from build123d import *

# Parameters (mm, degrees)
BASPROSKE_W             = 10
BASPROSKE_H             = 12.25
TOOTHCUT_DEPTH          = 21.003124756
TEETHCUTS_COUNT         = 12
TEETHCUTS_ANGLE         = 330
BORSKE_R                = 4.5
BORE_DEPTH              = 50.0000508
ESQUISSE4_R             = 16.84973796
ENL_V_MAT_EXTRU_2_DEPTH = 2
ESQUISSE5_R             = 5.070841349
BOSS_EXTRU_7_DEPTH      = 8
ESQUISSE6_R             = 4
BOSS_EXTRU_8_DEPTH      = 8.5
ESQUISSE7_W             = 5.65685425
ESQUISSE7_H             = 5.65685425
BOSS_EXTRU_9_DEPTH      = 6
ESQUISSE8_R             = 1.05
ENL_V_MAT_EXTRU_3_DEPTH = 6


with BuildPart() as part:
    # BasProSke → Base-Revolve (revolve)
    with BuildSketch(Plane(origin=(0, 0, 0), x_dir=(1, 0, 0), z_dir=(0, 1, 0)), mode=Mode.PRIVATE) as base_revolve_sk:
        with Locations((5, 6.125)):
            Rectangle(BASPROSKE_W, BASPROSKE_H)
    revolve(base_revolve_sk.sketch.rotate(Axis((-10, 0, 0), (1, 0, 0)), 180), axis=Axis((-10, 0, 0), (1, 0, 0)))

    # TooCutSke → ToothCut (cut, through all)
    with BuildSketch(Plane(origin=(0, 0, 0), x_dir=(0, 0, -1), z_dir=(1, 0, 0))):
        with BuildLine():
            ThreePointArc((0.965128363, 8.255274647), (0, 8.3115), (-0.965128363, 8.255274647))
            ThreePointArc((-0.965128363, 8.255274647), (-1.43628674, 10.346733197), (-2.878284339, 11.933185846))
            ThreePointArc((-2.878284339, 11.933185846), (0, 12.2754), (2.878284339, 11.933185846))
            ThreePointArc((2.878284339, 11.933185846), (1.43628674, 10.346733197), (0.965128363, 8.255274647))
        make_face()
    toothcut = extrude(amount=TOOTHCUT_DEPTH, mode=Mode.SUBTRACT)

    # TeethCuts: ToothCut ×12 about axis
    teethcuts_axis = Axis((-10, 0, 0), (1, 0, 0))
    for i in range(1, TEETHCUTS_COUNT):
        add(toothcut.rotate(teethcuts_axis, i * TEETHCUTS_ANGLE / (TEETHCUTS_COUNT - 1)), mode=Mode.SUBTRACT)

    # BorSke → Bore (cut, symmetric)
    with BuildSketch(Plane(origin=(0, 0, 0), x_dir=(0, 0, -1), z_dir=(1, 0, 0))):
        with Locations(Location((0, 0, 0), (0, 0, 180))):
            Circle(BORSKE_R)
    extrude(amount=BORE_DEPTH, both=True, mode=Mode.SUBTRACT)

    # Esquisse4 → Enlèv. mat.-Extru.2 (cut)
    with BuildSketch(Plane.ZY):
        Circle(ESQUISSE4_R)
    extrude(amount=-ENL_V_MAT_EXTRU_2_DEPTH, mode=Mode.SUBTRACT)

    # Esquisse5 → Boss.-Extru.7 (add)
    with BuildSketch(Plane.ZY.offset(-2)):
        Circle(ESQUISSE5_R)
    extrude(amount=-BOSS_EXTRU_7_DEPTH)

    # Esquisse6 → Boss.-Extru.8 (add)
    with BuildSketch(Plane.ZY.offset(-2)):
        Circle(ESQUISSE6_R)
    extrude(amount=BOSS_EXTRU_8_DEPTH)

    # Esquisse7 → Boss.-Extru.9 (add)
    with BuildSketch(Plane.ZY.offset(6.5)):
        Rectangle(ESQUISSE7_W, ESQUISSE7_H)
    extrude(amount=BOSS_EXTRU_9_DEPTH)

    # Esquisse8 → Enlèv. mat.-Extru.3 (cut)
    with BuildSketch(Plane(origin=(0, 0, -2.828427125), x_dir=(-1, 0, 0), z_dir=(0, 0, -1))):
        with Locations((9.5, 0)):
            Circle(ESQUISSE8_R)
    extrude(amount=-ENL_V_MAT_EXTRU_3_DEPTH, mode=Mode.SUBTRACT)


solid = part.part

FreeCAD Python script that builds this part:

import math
import FreeCAD as App
import Part
import Sketcher

V = App.Vector


def add_polygon(sketch, points):
    """Adds a closed chain of lines whose ends are joined by coincident constraints."""
    first, n = sketch.GeometryCount, len(points)
    for a, b in zip(points, points[1:] + points[:1]):
        sketch.addGeometry(Part.LineSegment(App.Vector(*a, 0), App.Vector(*b, 0)), False)
    for i in range(n):
        sketch.addConstraint(Sketcher.Constraint("Coincident", first + i, 2, first + (i + 1) % n, 1))

doc = App.newDocument("Part")
body = doc.addObject("PartDesign::Body", "Body")

# Sketch on XZ plane
sketch1 = doc.addObject("Sketcher::SketchObject", "Sketch")
body.addObject(sketch1)
sketch1.AttachmentSupport = (doc.XZ_Plane, [""])
sketch1.MapMode = "FlatFace"
add_polygon(sketch1, [(0, -12), (0, 0), (10, 0), (10, -12)])  # lines 0-3
sketch1.addConstraint([
    Sketcher.Constraint("Vertical", 0),
    Sketcher.Constraint("Horizontal", 1),
    Sketcher.Constraint("Vertical", 2),
    Sketcher.Constraint("Horizontal", 3),
    Sketcher.Constraint("Coincident", 0, 2, -1, 1),
    Sketcher.Constraint("DistanceX", 1, 1, 1, 2, 10.0),
    Sketcher.Constraint("DistanceY", 0, 1, 0, 2, 12.25),
])
revolution = doc.addObject("PartDesign::Revolution", "Revolution")
body.addObject(revolution)
revolution.Profile = sketch1
revolution.ReferenceAxis = (sketch1, ["H_Axis"])
revolution.Angle = 360

# Sketch on YZ plane
sketch2 = doc.addObject("Sketcher::SketchObject", "Sketch001")
body.addObject(sketch2)
sketch2.AttachmentSupport = (doc.YZ_Plane, [""])
sketch2.MapMode = "FlatFace"
sketch2.addGeometry([
    Part.ArcOfCircle(Part.Circle(V(0, 0, 0), V(0, 0, 1), 8.3), math.radians(-6.67), math.radians(6.67)),
    Part.ArcOfCircle(Part.Circle(V(8.4, -5.2, 0), V(0, 0, 1), 4.2), math.radians(33), math.radians(92)),
    Part.ArcOfCircle(Part.Circle(V(0, 0, 0), V(0, 0, 1), 12.3), math.radians(-14), math.radians(14)),
    Part.ArcOfCircle(Part.Circle(V(8.4, 5.2, 0), V(0, 0, 1), 4.2), math.radians(-92), math.radians(-33)),
], False)
sketch2.addConstraint([
    Sketcher.Constraint("Coincident", 0, 1, 1, 2),
    Sketcher.Constraint("Coincident", 1, 1, 2, 1),
    Sketcher.Constraint("Coincident", 2, 2, 3, 2),
    Sketcher.Constraint("Coincident", 3, 1, 0, 2),
    Sketcher.Constraint("Coincident", 0, 3, -1, 1),
    Sketcher.Constraint("Coincident", 2, 3, -1, 1),
    Sketcher.Constraint("Equal", 1, 3),
    Sketcher.Constraint("Symmetric", 1, 3, 3, 3, -1),
    Sketcher.Constraint("Radius", 1, 4.2),
    Sketcher.Constraint("Radius", 0, 8.3115),
    Sketcher.Constraint("Radius", 2, 12.2754),
    Sketcher.Constraint("DistanceX", -1, 1, 1, 3, 8.40854),
    Sketcher.Constraint("DistanceY", 1, 3, -1, 1, 5.162331),
])
pocket1 = doc.addObject("PartDesign::Pocket", "Pocket")
body.addObject(pocket1)
pocket1.Profile = sketch2
pocket1.Type = "ThroughAll"
pocket1.Reversed = True
doc.recompute()

polarpattern = doc.addObject("PartDesign::PolarPattern", "PolarPattern")
body.addObject(polarpattern)
polarpattern.Originals = [pocket1]
polarpattern.Axis = (doc.X_Axis, [""])
polarpattern.Angle = 360
polarpattern.Occurrences = 12
body.Tip = polarpattern

# Sketch on YZ plane
sketch3 = doc.addObject("Sketcher::SketchObject", "Sketch002")
body.addObject(sketch3)
sketch3.AttachmentSupport = (doc.YZ_Plane, [""])
sketch3.MapMode = "FlatFace"
sketch3.addGeometry(Part.Circle(V(0, 0, 0), V(0, 0, 1), 4.5), False)
sketch3.addConstraint([
    Sketcher.Constraint("Coincident", 0, 3, -1, 1),
    Sketcher.Constraint("Diameter", 0, 9.0),
])
pocket2 = doc.addObject("PartDesign::Pocket", "Pocket001")
body.addObject(pocket2)
pocket2.Profile = sketch3
pocket2.Length = 100.000102
pocket2.Midplane = True

# Sketch on YZ plane
sketch4 = doc.addObject("Sketcher::SketchObject", "Sketch003")
body.addObject(sketch4)
sketch4.AttachmentSupport = (doc.YZ_Plane, [""])
sketch4.MapMode = "FlatFace"
sketch4.addGeometry(Part.Circle(V(0, 0, 0), V(0, 0, 1), 17), False)
sketch4.addConstraint([
    Sketcher.Constraint("Coincident", 0, 3, -1, 1),
    Sketcher.Constraint("Diameter", 0, 33.699476),
])
pocket3 = doc.addObject("PartDesign::Pocket", "Pocket002")
body.addObject(pocket3)
pocket3.Profile = sketch4
pocket3.Length = 2
pocket3.Reversed = True

# Sketch on YZ plane
sketch5 = doc.addObject("Sketcher::SketchObject", "Sketch004")
body.addObject(sketch5)
sketch5.AttachmentSupport = (doc.YZ_Plane, [""])
sketch5.MapMode = "FlatFace"
sketch5.AttachmentOffset = App.Placement(V(0, 0, 2), App.Rotation())
sketch5.addGeometry(Part.Circle(V(0, 0, 0), V(0, 0, 1), 5), False)
sketch5.addConstraint([
    Sketcher.Constraint("Coincident", 0, 3, -1, 1),
    Sketcher.Constraint("Diameter", 0, 10.141683),
])
pad1 = doc.addObject("PartDesign::Pad", "Pad")
body.addObject(pad1)
pad1.Profile = sketch5
pad1.Length = 8

# Sketch on YZ plane
sketch6 = doc.addObject("Sketcher::SketchObject", "Sketch005")
body.addObject(sketch6)
sketch6.AttachmentSupport = (doc.YZ_Plane, [""])
sketch6.MapMode = "FlatFace"
sketch6.AttachmentOffset = App.Placement(V(0, 0, 2), App.Rotation())
sketch6.addGeometry(Part.Circle(V(0, 0, 0), V(0, 0, 1), 4), False)
sketch6.addConstraint([
    Sketcher.Constraint("Coincident", 0, 3, -1, 1),
    Sketcher.Constraint("Diameter", 0, 8.0),
])
pad2 = doc.addObject("PartDesign::Pad", "Pad001")
body.addObject(pad2)
pad2.Profile = sketch6
pad2.Length = 8.5
pad2.Reversed = True

# Sketch on YZ plane
sketch7 = doc.addObject("Sketcher::SketchObject", "Sketch006")
body.addObject(sketch7)
sketch7.AttachmentSupport = (doc.YZ_Plane, [""])
sketch7.MapMode = "FlatFace"
sketch7.AttachmentOffset = App.Placement(V(0, 0, -6.5), App.Rotation())
add_polygon(sketch7, [(3, -3), (-3, -3), (-3, 3), (3, 3)])  # lines 0-3
sketch7.addConstraint([
    Sketcher.Constraint("Horizontal", 0),
    Sketcher.Constraint("Vertical", 1),
    Sketcher.Constraint("Horizontal", 2),
    Sketcher.Constraint("Vertical", 3),
    Sketcher.Constraint("Symmetric", 0, 2, 2, 2, -1, 1),
    Sketcher.Constraint("Equal", 2, 1),
    Sketcher.Constraint("DistanceX", 0, 2, 0, 1, 5.656854),
])
pad3 = doc.addObject("PartDesign::Pad", "Pad002")
body.addObject(pad3)
pad3.Profile = sketch7
pad3.Length = 6
pad3.Reversed = True

# Sketch on XY plane
sketch8 = doc.addObject("Sketcher::SketchObject", "Sketch007")
body.addObject(sketch8)
sketch8.AttachmentSupport = (doc.XY_Plane, [""])
sketch8.MapMode = "FlatFace"
sketch8.AttachmentOffset = App.Placement(V(0, 0, -2.828427), App.Rotation())
sketch8.addGeometry(Part.Circle(V(-9.5, 0, 0), V(0, 0, 1), 1.1), False)
sketch8.addConstraint([
    Sketcher.Constraint("PointOnObject", 0, 3, -1),
    Sketcher.Constraint("Diameter", 0, 2.1),
    Sketcher.Constraint("DistanceX", 0, 3, -1, 1, 9.5),
])
pocket4 = doc.addObject("PartDesign::Pocket", "Pocket003")
body.addObject(pocket4)
pocket4.Profile = sketch8
pocket4.Length = 6
pocket4.Reversed = True

doc.recompute()
